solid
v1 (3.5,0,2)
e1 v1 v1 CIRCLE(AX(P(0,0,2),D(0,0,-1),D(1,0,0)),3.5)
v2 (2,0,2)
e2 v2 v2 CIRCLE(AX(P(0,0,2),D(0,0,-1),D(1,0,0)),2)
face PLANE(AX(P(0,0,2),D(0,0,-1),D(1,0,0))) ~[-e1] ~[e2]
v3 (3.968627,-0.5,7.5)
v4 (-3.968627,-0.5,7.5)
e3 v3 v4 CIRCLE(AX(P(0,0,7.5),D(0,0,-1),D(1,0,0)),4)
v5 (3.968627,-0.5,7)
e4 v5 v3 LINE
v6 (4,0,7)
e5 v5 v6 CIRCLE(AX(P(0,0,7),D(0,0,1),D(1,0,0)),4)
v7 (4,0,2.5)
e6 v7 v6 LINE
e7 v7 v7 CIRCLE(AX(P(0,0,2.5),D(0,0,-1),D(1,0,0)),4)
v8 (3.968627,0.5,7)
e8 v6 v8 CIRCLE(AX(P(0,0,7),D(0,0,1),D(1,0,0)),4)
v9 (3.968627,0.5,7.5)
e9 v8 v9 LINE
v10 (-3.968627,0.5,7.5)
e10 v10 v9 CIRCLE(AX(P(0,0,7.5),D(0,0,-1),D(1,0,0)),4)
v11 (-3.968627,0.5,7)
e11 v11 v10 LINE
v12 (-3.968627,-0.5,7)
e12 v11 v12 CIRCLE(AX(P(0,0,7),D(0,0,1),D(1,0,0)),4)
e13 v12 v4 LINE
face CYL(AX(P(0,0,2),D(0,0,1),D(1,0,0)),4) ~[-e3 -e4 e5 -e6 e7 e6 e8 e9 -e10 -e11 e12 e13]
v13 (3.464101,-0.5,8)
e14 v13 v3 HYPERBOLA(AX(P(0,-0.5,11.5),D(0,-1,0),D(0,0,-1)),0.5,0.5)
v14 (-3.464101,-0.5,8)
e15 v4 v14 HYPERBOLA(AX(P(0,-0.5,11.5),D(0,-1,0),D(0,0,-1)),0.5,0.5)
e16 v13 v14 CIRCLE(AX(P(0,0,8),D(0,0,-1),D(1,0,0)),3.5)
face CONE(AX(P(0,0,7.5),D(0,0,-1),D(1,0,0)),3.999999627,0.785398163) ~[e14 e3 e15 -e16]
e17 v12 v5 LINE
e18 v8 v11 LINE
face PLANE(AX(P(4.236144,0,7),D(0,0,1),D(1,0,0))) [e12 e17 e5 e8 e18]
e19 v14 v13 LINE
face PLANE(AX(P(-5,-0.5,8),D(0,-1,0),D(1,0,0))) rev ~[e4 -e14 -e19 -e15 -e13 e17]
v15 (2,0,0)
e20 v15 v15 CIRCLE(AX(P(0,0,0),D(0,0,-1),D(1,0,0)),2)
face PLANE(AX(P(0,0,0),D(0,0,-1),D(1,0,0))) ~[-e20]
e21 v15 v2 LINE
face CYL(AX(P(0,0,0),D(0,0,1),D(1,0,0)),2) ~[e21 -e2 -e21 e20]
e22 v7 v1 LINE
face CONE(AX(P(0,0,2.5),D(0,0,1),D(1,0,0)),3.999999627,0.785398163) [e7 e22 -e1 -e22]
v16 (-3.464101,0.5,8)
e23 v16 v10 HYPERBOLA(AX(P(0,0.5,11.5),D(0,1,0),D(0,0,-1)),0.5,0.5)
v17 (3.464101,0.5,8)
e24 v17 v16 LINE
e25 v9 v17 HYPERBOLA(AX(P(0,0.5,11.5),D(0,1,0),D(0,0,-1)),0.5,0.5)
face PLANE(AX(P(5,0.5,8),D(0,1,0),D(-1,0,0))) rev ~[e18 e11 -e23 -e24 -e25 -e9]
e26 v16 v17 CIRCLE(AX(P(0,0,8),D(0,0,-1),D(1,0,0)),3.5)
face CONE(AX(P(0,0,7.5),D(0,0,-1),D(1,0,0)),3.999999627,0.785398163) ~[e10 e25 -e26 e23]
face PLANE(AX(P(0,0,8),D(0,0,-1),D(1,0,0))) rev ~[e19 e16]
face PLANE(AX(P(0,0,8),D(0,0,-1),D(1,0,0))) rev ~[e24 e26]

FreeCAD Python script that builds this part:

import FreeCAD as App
import Part
import Sketcher
Q = App.Units.Quantity


def edges_at(feature, points):
    """Names of the edges that pass closest to the given points."""
    edges = feature.Shape.Edges
    near = lambda p: min(range(len(edges)), key=lambda i: edges[i].distToShape(Part.Vertex(*p))[0])
    return sorted({f"Edge{near(p) + 1}" for p in points})

doc = App.newDocument("Part")
body = doc.addObject("PartDesign::Body", "Body")

# Sketch on XZ plane
sketch1 = body.newObject("Sketcher::SketchObject", "Sketch")
sketch1.AttachmentSupport = (doc.getObject("XZ_Plane"), [""])
sketch1.MapMode = "FlatFace"
sketch1.addGeometry([
    Part.LineSegment(App.Vector(0, 8, 0), App.Vector(0, 0, 0)),  # 0
    Part.LineSegment(App.Vector(0, 0, 0), App.Vector(2, 0, 0)),  # 1
    Part.LineSegment(App.Vector(2, 0, 0), App.Vector(2, 2, 0)),  # 2
    Part.LineSegment(App.Vector(2, 2, 0), App.Vector(4, 2, 0)),  # 3
    Part.LineSegment(App.Vector(4, 2, 0), App.Vector(4, 8, 0)),  # 4
    Part.LineSegment(App.Vector(4, 8, 0), App.Vector(0, 8, 0)),  # 5
], False)
sketch1.addConstraint([
    Sketcher.Constraint("Coincident", 0, 2, 1, 1),
    Sketcher.Constraint("Coincident", 1, 2, 2, 1),
    Sketcher.Constraint("Coincident", 2, 2, 3, 1),
    Sketcher.Constraint("Coincident", 3, 2, 4, 1),
    Sketcher.Constraint("Coincident", 4, 2, 5, 1),
    Sketcher.Constraint("Coincident", 5, 2, 0, 1),
    Sketcher.Constraint("Vertical", 0),
    Sketcher.Constraint("Horizontal", 1),
    Sketcher.Constraint("Vertical", 2),
    Sketcher.Constraint("Horizontal", 3),
    Sketcher.Constraint("Vertical", 4),
    Sketcher.Constraint("Horizontal", 5),
    Sketcher.Constraint("Coincident", 0, 2, -1, 1),
    Sketcher.Constraint("Equal", 1, 3),
    Sketcher.Constraint("Equal", 3, 2),
    Sketcher.Constraint("DistanceX", 1, 1, 1, 2, Q("2 mm")),
    Sketcher.Constraint("DistanceY", 0, 2, 0, 1, Q("8 mm")),
])
revolution = body.newObject("PartDesign::Revolution", "Revolution")
revolution.Profile = sketch1
revolution.ReferenceAxis = (sketch1, ["V_Axis"])
revolution.Angle = 360
doc.recompute()

chamfer = body.newObject("PartDesign::Chamfer", "Chamfer")
chamfer.Base = (revolution, edges_at(revolution, [(-4, 0, 8)]))
chamfer.Size = 0.5
doc.recompute()

chamfer2 = body.newObject("PartDesign::Chamfer", "Chamfer001")
chamfer2.Base = (chamfer, edges_at(chamfer, [(-4, 0, 2)]))
chamfer2.Size = 0.5

# Sketch on XY plane
sketch2 = body.newObject("Sketcher::SketchObject", "Sketch001")
sketch2.AttachmentSupport = (doc.getObject("XY_Plane"), [""])
sketch2.MapMode = "FlatFace"
sketch2.AttachmentOffset = App.Placement(App.Vector(0, 0, 8), App.Rotation())
sketch2.addGeometry([
    Part.LineSegment(App.Vector(5, 0.5, 0), App.Vector(-5, 0.5, 0)),
    Part.LineSegment(App.Vector(-5, 0.5, 0), App.Vector(-5, -0.5, 0)),
    Part.LineSegment(App.Vector(-5, -0.5, 0), App.Vector(5, -0.5, 0)),
    Part.LineSegment(App.Vector(5, -0.5, 0), App.Vector(5, 0.5, 0)),
], False)
sketch2.addConstraint([
    Sketcher.Constraint("Coincident", 0, 2, 1, 1),
    Sketcher.Constraint("Coincident", 1, 2, 2, 1),
    Sketcher.Constraint("Coincident", 2, 2, 3, 1),
    Sketcher.Constraint("Coincident", 3, 2, 0, 1),
    Sketcher.Constraint("Horizontal", 0),
    Sketcher.Constraint("Vertical", 1),
    Sketcher.Constraint("Horizontal", 2),
    Sketcher.Constraint("Vertical", 3),
    Sketcher.Constraint("Symmetric", 0, 2, 2, 2, -1, 1),
    Sketcher.Constraint("DistanceX", 0, 2, 0, 1, Q("10 mm")),
    Sketcher.Constraint("DistanceY", 1, 2, 1, 1, Q("1 mm")),
])
pocket1 = body.newObject("PartDesign::Pocket", "Pocket")
pocket1.Profile = sketch2
pocket1.Length = 1

doc.recompute()
